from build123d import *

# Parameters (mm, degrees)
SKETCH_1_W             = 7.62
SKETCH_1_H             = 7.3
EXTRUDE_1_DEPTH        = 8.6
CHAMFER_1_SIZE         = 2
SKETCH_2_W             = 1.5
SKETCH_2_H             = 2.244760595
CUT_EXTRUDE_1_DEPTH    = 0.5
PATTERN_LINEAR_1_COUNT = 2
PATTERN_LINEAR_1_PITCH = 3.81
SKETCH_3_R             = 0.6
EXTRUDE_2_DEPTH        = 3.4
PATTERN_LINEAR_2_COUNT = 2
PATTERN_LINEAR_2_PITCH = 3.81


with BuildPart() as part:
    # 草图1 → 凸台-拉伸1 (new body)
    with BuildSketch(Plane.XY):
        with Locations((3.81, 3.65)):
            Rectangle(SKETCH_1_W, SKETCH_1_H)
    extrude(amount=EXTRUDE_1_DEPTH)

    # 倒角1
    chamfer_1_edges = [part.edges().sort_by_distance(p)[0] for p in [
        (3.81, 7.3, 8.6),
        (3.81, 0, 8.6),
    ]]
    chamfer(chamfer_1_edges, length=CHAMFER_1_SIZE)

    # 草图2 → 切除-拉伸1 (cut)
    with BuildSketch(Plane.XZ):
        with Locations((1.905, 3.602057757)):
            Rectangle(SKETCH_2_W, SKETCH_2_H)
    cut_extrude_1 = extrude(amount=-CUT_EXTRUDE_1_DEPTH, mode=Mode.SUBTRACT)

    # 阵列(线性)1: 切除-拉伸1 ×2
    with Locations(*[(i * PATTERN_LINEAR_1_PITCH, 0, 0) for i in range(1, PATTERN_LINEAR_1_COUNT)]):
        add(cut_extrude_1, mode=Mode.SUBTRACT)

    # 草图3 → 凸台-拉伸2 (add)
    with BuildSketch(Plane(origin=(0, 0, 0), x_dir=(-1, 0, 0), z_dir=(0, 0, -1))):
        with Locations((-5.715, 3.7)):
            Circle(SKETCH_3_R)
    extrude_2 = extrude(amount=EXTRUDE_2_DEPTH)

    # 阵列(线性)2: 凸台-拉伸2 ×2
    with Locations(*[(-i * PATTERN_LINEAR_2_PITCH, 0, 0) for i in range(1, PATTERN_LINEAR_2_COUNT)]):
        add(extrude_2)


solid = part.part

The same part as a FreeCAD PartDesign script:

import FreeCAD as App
import Part
import Sketcher
from FreeCAD import Vector
Q = App.Units.Quantity


def edges_at(feature, points):
    """Names of the edges that pass closest to the given points."""
    edges = feature.Shape.Edges
    near = lambda p: min(range(len(edges)), key=lambda i: edges[i].distToShape(Part.Vertex(*p))[0])
    return sorted({f"Edge{near(p) + 1}" for p in points})

doc = App.newDocument("Part")
params = doc.addObject("Spreadsheet::Sheet", "Params")
for row, (alias, value) in enumerate([
    ("sketch1_height", "7.3 mm"),
    ("sketch1_width", "7.62 mm"),
    ("pad1_length", "8.6 mm"),
    ("chamfer_size", "2 mm"),
    ("sketch2_width", "1.5 mm"),
    ("pocket1_length", "0.5 mm"),
    ("linearpattern_pitch", "3.81 mm"),
    ("sketch3_diameter", "1.2 mm"),
    ("pad2_length", "3.4 mm"),
    ("linearpattern2_pitch", "3.81 mm"),
], start=1):
    params.set(f"A{row}", alias)
    params.set(f"B{row}", "=" + value)
    params.setAlias(f"B{row}", alias)

body = doc.addObject("PartDesign::Body", "Body")

# Sketch on XY plane
sketch1 = body.newObject("Sketcher::SketchObject", "Sketch")
sketch1.AttachmentSupport = (doc.getObject("XY_Plane"), [""])
sketch1.MapMode = "FlatFace"
sketch1.addGeometry([
    Part.LineSegment(Vector(0, 7, 0), Vector(0, 0, 0)),
    Part.LineSegment(Vector(0, 0, 0), Vector(8, 0, 0)),
    Part.LineSegment(Vector(8, 0, 0), Vector(8, 7, 0)),
    Part.LineSegment(Vector(8, 7, 0), Vector(0, 7, 0)),
], False)
sketch1.addConstraint([
    Sketcher.Constraint("Coincident", 0, 2, 1, 1),
    Sketcher.Constraint("Coincident", 1, 2, 2, 1),
    Sketcher.Constraint("Coincident", 2, 2, 3, 1),
    Sketcher.Constraint("Coincident", 3, 2, 0, 1),
    Sketcher.Constraint("Vertical", 0),
    Sketcher.Constraint("Horizontal", 1),
    Sketcher.Constraint("Vertical", 2),
    Sketcher.Constraint("Horizontal", 3),
    Sketcher.Constraint("Coincident", 0, 2, -1, 1),
    Sketcher.Constraint("DistanceY", 0, 2, 0, 1, Q("7.3 mm")),
    Sketcher.Constraint("DistanceX", 1, 1, 1, 2, Q("7.62 mm")),
])
sketch1.setExpression("Constraints[9]", "Params.sketch1_height")
sketch1.setExpression("Constraints[10]", "Params.sketch1_width")
pad1 = body.newObject("PartDesign::Pad", "Pad")
pad1.Profile = sketch1
pad1.setExpression("Length", "Params.pad1_length")
doc.recompute()

chamfer = body.newObject("PartDesign::Chamfer", "Chamfer")
chamfer.Base = (pad1, edges_at(pad1, [(3.81, 7.3, 8.6), (3.81, 0, 8.6)]))
chamfer.setExpression("Size", "Params.chamfer_size")

# Sketch on XZ plane
sketch2 = body.newObject("Sketcher::SketchObject", "Sketch001")
sketch2.AttachmentSupport = (doc.getObject("XZ_Plane"), [""])
sketch2.MapMode = "FlatFace"
sketch2.addGeometry([
    Part.LineSegment(Vector(1.2, 4.7, 0), Vector(1.2, 2.5, 0)),
    Part.LineSegment(Vector(1.2, 2.5, 0), Vector(2.7, 2.5, 0)),
    Part.LineSegment(Vector(2.7, 2.5, 0), Vector(2.7, 4.7, 0)),
    Part.LineSegment(Vector(2.7, 4.7, 0), Vector(1.2, 4.7, 0)),
], False)
sketch2.addConstraint([
    Sketcher.Constraint("Coincident", 0, 2, 1, 1),
    Sketcher.Constraint("Coincident", 1, 2, 2, 1),
    Sketcher.Constraint("Coincident", 2, 2, 3, 1),
    Sketcher.Constraint("Coincident", 3, 2, 0, 1),
    Sketcher.Constraint("Vertical", 0),
    Sketcher.Constraint("Horizontal", 1),
    Sketcher.Constraint("Vertical", 2),
    Sketcher.Constraint("Horizontal", 3),
    Sketcher.Constraint("DistanceX", 1, 1, 1, 2, Q("1.5 mm")),
    Sketcher.Constraint("DistanceX", -1, 1, 0, 2, Q("1.155 mm")),
    Sketcher.Constraint("DistanceY", 0, 2, 0, 1, Q("2.244761 mm")),
    Sketcher.Constraint("DistanceY", -1, 1, 2, 2, Q("4.724438 mm")),
])
sketch2.setExpression("Constraints[8]", "Params.sketch2_width")
pocket1 = body.newObject("PartDesign::Pocket", "Pocket")
pocket1.Profile = sketch2
pocket1.setExpression("Length", "Params.pocket1_length")
doc.recompute()

linearpattern = body.newObject("PartDesign::LinearPattern", "LinearPattern")
linearpattern.Originals = [pocket1]
linearpattern.Direction = (doc.getObject("X_Axis"), [""])
linearpattern.Mode = "offset"
linearpattern.setExpression("Offset", "Params.linearpattern_pitch")
linearpattern.Occurrences = 2
body.Tip = linearpattern

# Sketch on XY plane
sketch3 = body.newObject("Sketcher::SketchObject", "Sketch002")
sketch3.AttachmentSupport = (doc.getObject("XY_Plane"), [""])
sketch3.MapMode = "FlatFace"
sketch3.addGeometry(Part.Circle(Vector(5.7, 3.7, 0), Vector(0, 0, 1), 0.6), False)
sketch3.addConstraint([
    Sketcher.Constraint("Diameter", 0, Q("1.2 mm")),
    Sketcher.Constraint("DistanceY", -1, 1, 0, 3, Q("3.7 mm")),
    Sketcher.Constraint("DistanceX", -1, 1, 0, 3, Q("5.715 mm")),
])
sketch3.setExpression("Constraints[0]", "Params.sketch3_diameter")
pad2 = body.newObject("PartDesign::Pad", "Pad001")
pad2.Profile = sketch3
pad2.setExpression("Length", "Params.pad2_length")
pad2.Reversed = True
doc.recompute()

linearpattern2 = body.newObject("PartDesign::LinearPattern", "LinearPattern001")
linearpattern2.Originals = [pad2]
linearpattern2.Direction = (doc.getObject("X_Axis"), [""])
linearpattern2.Mode = "offset"
linearpattern2.setExpression("Offset", "Params.linearpattern2_pitch")
linearpattern2.Occurrences = 2
linearpattern2.Reversed = True
body.Tip = linearpattern2

doc.recompute()
